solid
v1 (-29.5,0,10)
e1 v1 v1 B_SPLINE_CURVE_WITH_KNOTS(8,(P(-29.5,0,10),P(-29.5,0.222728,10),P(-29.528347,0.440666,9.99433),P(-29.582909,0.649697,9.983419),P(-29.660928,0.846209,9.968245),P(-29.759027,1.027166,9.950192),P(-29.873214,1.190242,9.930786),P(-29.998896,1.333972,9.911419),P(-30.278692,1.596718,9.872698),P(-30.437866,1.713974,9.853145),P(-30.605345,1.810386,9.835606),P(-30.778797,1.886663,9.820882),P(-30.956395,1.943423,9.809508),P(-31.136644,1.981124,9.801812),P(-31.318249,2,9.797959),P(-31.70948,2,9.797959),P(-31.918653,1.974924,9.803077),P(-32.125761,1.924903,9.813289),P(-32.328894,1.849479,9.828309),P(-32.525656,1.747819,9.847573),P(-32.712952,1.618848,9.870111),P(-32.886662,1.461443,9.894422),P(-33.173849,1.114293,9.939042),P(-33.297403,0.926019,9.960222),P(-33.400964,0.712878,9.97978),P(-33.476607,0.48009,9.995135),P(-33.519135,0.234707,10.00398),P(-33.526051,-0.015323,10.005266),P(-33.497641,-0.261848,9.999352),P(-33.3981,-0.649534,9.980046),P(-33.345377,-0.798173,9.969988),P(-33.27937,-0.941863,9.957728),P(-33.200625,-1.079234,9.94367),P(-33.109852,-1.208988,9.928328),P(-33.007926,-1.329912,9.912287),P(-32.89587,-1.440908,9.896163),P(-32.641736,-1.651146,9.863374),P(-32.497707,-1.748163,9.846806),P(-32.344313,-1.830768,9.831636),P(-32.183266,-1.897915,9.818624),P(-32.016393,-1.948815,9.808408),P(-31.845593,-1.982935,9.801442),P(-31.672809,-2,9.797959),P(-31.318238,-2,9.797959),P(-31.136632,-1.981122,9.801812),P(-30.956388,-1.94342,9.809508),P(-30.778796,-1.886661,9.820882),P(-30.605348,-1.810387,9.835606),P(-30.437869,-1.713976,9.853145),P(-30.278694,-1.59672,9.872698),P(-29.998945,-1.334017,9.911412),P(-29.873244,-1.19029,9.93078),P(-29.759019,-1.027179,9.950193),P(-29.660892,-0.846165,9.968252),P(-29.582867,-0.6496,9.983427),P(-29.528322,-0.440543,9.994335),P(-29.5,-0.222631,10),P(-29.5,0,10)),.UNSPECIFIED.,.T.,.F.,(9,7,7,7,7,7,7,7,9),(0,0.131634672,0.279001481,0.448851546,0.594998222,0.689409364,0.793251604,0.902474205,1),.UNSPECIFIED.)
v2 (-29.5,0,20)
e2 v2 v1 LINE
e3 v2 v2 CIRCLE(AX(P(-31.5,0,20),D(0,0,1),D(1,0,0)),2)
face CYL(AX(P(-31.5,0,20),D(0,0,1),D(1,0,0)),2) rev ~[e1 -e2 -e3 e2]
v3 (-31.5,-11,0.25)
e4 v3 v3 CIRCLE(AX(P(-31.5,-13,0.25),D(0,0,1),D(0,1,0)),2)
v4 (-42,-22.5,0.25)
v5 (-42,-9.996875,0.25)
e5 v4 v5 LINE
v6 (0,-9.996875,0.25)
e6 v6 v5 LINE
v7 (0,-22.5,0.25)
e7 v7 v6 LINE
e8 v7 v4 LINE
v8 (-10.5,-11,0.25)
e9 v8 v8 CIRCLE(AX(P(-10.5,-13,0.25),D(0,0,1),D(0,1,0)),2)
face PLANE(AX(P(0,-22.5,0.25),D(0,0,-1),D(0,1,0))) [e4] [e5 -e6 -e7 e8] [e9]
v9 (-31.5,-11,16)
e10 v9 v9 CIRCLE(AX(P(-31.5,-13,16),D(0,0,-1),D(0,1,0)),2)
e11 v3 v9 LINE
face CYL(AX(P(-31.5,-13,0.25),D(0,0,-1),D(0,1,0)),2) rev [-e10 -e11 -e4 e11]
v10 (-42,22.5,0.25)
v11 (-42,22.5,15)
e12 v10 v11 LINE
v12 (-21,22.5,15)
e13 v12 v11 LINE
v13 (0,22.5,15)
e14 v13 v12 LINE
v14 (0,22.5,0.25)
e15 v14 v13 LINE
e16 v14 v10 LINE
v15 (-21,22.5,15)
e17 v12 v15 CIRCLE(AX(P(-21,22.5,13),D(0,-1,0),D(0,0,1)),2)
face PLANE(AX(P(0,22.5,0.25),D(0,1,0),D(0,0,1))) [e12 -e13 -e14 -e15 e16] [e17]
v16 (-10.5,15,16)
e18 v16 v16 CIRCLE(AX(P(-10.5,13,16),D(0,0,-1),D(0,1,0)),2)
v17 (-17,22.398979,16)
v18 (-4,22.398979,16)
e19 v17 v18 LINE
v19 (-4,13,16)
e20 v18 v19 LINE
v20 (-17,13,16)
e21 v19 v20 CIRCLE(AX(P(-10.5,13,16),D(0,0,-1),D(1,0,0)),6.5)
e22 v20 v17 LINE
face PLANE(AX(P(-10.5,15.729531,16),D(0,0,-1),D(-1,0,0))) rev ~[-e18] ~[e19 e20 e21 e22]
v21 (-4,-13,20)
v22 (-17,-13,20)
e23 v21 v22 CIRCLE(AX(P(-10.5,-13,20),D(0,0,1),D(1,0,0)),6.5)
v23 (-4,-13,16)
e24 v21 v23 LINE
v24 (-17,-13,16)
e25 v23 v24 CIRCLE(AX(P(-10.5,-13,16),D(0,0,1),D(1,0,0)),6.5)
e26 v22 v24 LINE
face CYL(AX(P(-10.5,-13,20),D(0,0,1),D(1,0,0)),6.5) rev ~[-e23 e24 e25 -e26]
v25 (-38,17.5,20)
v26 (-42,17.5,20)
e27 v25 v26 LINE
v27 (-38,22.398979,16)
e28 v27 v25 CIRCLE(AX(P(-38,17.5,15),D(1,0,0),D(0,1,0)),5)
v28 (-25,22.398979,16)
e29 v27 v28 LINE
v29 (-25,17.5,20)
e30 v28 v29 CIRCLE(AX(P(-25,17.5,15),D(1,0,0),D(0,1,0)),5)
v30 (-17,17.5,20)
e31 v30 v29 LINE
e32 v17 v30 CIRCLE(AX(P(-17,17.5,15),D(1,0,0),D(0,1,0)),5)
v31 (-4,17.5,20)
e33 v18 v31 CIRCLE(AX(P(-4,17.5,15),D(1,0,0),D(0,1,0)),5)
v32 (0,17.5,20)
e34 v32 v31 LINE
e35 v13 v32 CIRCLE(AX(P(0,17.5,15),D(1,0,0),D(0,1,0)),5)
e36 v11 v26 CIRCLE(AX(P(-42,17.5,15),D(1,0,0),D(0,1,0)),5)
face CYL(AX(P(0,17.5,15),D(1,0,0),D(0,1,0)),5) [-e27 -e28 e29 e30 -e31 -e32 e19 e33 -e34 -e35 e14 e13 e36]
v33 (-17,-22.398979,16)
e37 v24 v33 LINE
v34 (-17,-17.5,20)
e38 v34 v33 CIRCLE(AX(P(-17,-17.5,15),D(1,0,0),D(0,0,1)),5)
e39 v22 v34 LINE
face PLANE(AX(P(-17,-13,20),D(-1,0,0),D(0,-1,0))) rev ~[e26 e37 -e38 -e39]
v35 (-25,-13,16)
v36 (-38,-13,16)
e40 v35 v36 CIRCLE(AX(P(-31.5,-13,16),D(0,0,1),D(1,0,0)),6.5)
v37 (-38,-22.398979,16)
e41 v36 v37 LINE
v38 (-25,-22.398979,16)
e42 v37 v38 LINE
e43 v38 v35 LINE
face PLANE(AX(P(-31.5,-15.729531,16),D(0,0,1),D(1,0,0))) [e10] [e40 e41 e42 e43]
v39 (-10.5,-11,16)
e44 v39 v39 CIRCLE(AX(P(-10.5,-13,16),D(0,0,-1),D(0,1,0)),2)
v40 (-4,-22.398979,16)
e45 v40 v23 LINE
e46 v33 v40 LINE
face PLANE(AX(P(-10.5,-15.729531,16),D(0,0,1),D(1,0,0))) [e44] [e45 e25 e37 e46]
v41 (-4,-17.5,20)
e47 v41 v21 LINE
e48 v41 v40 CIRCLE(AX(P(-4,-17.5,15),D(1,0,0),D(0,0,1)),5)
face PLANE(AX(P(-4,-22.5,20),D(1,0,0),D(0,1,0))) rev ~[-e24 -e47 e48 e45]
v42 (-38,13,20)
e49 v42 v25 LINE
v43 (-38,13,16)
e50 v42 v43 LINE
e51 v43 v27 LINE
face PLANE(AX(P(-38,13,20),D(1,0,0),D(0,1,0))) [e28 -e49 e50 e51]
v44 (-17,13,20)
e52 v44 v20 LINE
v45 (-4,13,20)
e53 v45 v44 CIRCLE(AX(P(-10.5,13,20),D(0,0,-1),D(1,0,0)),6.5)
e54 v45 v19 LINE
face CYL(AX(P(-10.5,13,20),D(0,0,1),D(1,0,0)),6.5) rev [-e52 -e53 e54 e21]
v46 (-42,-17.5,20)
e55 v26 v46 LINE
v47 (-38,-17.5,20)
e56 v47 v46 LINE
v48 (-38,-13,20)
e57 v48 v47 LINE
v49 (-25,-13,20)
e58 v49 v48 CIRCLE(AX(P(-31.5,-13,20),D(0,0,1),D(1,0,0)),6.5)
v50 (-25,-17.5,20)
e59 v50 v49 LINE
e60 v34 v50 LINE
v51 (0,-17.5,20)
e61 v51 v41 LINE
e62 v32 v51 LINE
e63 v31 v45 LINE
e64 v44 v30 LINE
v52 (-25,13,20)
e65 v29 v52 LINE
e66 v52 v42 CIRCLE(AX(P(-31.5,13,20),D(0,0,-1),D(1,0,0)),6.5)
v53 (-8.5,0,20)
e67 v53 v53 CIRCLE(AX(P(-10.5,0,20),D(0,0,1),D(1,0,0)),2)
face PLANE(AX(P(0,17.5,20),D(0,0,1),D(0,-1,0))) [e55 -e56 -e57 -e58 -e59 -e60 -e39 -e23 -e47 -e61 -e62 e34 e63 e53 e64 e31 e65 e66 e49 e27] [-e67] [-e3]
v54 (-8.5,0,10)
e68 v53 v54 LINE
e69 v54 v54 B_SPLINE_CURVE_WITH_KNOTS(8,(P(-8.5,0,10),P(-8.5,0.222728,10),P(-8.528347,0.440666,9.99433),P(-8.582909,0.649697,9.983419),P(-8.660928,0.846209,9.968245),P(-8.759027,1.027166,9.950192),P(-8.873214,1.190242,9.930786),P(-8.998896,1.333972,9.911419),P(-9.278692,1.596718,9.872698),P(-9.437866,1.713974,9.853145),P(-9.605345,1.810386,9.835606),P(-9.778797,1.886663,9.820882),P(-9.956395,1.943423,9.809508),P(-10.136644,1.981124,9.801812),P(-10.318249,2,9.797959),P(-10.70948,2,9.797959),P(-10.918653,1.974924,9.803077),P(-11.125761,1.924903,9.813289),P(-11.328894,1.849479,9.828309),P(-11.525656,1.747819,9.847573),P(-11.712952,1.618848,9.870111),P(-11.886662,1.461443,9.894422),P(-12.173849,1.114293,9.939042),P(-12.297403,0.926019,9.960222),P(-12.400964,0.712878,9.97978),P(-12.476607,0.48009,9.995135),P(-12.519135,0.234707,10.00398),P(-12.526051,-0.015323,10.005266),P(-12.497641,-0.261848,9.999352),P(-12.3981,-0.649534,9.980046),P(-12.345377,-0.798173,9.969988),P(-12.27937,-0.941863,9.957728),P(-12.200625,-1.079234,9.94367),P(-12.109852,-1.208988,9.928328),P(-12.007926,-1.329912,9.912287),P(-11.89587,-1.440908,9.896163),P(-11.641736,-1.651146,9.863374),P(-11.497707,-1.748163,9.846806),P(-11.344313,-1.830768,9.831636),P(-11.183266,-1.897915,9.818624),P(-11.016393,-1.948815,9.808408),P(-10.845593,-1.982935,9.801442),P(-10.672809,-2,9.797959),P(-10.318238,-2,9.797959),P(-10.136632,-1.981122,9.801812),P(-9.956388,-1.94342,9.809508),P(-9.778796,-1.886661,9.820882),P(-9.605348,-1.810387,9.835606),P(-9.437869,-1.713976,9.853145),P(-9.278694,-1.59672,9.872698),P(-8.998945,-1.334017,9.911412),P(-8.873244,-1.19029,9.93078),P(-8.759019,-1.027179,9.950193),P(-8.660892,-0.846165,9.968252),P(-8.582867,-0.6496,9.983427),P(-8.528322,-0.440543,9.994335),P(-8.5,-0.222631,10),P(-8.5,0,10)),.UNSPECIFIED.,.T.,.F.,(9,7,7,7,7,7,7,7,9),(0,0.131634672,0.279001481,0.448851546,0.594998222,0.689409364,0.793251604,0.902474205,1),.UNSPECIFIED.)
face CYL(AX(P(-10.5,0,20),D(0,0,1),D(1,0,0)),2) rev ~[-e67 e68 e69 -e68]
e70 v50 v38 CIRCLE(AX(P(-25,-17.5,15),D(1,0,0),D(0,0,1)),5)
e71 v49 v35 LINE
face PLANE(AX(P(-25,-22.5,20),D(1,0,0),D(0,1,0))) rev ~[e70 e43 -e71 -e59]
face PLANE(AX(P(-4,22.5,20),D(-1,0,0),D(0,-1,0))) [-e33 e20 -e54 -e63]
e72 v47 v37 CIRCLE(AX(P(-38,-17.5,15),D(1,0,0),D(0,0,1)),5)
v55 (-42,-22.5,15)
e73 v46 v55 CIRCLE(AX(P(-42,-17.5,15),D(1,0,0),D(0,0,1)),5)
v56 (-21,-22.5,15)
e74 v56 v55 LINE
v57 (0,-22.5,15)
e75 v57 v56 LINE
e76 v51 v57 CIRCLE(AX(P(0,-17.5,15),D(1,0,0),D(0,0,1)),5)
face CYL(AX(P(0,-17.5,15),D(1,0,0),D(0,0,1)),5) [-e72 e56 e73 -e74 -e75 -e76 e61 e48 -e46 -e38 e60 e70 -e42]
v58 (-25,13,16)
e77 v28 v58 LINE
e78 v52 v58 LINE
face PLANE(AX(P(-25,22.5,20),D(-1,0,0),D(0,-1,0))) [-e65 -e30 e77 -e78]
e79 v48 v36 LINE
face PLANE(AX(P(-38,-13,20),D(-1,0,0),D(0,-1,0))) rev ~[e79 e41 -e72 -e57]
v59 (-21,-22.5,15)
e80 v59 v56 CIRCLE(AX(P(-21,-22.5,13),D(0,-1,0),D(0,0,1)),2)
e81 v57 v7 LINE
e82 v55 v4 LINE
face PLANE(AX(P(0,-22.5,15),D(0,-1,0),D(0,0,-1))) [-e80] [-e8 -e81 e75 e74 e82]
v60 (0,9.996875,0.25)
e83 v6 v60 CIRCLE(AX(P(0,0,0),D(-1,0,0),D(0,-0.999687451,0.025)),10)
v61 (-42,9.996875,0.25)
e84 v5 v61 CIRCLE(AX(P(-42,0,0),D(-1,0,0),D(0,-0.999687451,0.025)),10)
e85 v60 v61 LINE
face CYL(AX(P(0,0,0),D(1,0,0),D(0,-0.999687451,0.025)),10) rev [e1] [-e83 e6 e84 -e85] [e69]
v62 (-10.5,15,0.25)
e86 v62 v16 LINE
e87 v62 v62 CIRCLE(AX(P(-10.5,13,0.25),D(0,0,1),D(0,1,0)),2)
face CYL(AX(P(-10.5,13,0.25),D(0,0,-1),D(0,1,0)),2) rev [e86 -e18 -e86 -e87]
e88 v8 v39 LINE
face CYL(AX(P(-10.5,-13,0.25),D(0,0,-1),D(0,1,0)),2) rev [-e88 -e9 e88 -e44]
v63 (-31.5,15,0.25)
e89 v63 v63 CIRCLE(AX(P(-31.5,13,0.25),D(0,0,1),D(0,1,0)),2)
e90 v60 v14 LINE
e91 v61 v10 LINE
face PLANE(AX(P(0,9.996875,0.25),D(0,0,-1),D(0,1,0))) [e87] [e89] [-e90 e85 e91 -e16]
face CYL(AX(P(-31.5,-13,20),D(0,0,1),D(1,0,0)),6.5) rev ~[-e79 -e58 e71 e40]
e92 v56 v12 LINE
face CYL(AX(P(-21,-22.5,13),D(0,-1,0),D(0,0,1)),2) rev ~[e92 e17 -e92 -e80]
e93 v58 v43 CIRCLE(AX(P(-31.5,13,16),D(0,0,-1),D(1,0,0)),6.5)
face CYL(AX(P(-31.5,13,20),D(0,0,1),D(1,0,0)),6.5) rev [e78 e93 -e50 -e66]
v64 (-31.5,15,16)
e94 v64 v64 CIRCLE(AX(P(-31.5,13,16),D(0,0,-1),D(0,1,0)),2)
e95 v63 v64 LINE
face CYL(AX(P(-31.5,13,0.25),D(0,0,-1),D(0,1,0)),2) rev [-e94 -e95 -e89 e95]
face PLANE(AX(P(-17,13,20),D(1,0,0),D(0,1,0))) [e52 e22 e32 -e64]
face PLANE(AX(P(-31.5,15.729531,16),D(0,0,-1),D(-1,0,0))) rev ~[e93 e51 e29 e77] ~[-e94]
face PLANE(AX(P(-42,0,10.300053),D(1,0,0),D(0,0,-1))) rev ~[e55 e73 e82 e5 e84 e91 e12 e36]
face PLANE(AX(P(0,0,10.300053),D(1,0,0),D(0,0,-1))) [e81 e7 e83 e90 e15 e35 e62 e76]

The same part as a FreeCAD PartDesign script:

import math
import FreeCAD as App
import Part
import Sketcher
from FreeCAD import Vector
Q = App.Units.Quantity

doc = App.newDocument("Part")
body = doc.addObject("PartDesign::Body", "Body")

sketch1 = body.newObject("Sketcher::SketchObject", "Sketch")
sketch1.AttachmentSupport = (doc.getObject("YZ_Plane"), [""])
sketch1.MapMode = "FlatFace"
sketch1.addGeometry(Part.LineSegment(Vector(10, 0, 0), Vector(22, 0, 0)), False)
sketch1.addGeometry(Part.LineSegment(Vector(22, 0, 0), Vector(22, 15, 0)), False)
sketch1.addGeometry(Part.ArcOfCircle(Part.Circle(Vector(18, 15, 0), Vector(0, 0, 1), 5), math.radians(0), math.radians(90)), False)
sketch1.addGeometry(Part.LineSegment(Vector(18, 20, 0), Vector(-18, 20, 0)), False)
sketch1.addGeometry(Part.ArcOfCircle(Part.Circle(Vector(-18, 15, 0), Vector(0, 0, 1), 5), math.radians(90), math.radians(180)), False)
sketch1.addGeometry(Part.LineSegment(Vector(-22, 15, 0), Vector(-22, 0, 0)), False)
sketch1.addGeometry(Part.LineSegment(Vector(-22, 0, 0), Vector(-10, 0, 0)), False)
sketch1.addGeometry(Part.ArcOfCircle(Part.Circle(Vector(0, 0, 0), Vector(0, 0, 1), 10), math.radians(1), math.radians(179)), False)
sketch1.addConstraint(Sketcher.Constraint("Coincident", 0, 2, 1, 1))
sketch1.addConstraint(Sketcher.Constraint("Tangent", 1, 2, 2, 1))
sketch1.addConstraint(Sketcher.Constraint("Tangent", 2, 2, 3, 1))
sketch1.addConstraint(Sketcher.Constraint("Tangent", 3, 2, 4, 1))
sketch1.addConstraint(Sketcher.Constraint("Tangent", 4, 2, 5, 1))
sketch1.addConstraint(Sketcher.Constraint("Coincident", 5, 2, 6, 1))
sketch1.addConstraint(Sketcher.Constraint("Coincident", 6, 2, 7, 2))
sketch1.addConstraint(Sketcher.Constraint("Coincident", 7, 1, 0, 1))
sketch1.addConstraint(Sketcher.Constraint("Horizontal", 0))
sketch1.addConstraint(Sketcher.Constraint("Vertical", 1))
sketch1.addConstraint(Sketcher.Constraint("Horizontal", 3))
sketch1.addConstraint(Sketcher.Constraint("Vertical", 5))
sketch1.addConstraint(Sketcher.Constraint("Horizontal", 6))
sketch1.addConstraint(Sketcher.Constraint("Coincident", 7, 3, -1, 1))
sketch1.addConstraint(Sketcher.Constraint("Equal", 2, 4))
sketch1.addConstraint(Sketcher.Constraint("Symmetric", 0, 2, 5, 2, -2))
sketch1.addConstraint(Sketcher.Constraint("Radius", 2, Q("5 mm")))
sketch1.addConstraint(Sketcher.Constraint("Radius", 7, Q("10 mm")))
sketch1.addConstraint(Sketcher.Constraint("DistanceX", 3, 2, 3, 1, Q("35 mm")))
sketch1.addConstraint(Sketcher.Constraint("DistanceY", -1, 1, 2, 3, Q("15 mm")))
sketch1.addConstraint(Sketcher.Constraint("DistanceY", 1, 1, 1, 2, Q("14.75 mm")))
pad1 = body.newObject("PartDesign::Pad", "Pad")
pad1.Profile = sketch1
pad1.Length = 42
pad1.Reversed = True

sketch2 = body.newObject("Sketcher::SketchObject", "Sketch001")
sketch2.AttachmentSupport = (doc.getObject("XY_Plane"), [""])
sketch2.MapMode = "FlatFace"
sketch2.AttachmentOffset = App.Placement(Vector(0, 0, 0.25), App.Rotation())
sketch2.addGeometry(Part.Circle(Vector(-10.5, 13, 0), Vector(0, 0, 1), 2), False)
sketch2.addGeometry(Part.Circle(Vector(-31.5, 13, 0), Vector(0, 0, 1), 2), False)
sketch2.addGeometry(Part.Circle(Vector(-31.5, -13, 0), Vector(0, 0, 1), 2), False)
sketch2.addGeometry(Part.Circle(Vector(-10.5, -13, 0), Vector(0, 0, 1), 2), False)
sketch2.addConstraint(Sketcher.Constraint("Equal", 0, 1))
sketch2.addConstraint(Sketcher.Constraint("Equal", 1, 2))
sketch2.addConstraint(Sketcher.Constraint("Equal", 2, 3))
sketch2.addConstraint(Sketcher.Constraint("Symmetric", 1, 3, 2, 3, -1))
sketch2.addConstraint(Sketcher.Constraint("Symmetric", 0, 3, 3, 3, -1))
sketch2.addConstraint(Sketcher.Constraint("Horizontal", 0, 3, 1, 3))
sketch2.addConstraint(Sketcher.Constraint("Diameter", 0, Q("4 mm")))
sketch2.addConstraint(Sketcher.Constraint("DistanceY", -1, 1, 0, 3, Q("13 mm")))
sketch2.addConstraint(Sketcher.Constraint("DistanceX", 1, 3, 0, 3, Q("21 mm")))
sketch2.addConstraint(Sketcher.Constraint("DistanceX", 0, 3, -1, 1, Q("10.5 mm")))
pocket1 = body.newObject("PartDesign::Pocket", "Pocket")
pocket1.Profile = sketch2
pocket1.Type = "ThroughAll"
pocket1.Reversed = True

sketch3 = body.newObject("Sketcher::SketchObject", "Sketch002")
sketch3.AttachmentSupport = (doc.getObject("XY_Plane"), [""])
sketch3.MapMode = "FlatFace"
sketch3.AttachmentOffset = App.Placement(Vector(0, 0, 20), App.Rotation())
sketch3.addGeometry(Part.LineSegment(Vector(-38, 22, 0), Vector(-38, 13, 0)), False)
sketch3.addGeometry(Part.ArcOfCircle(Part.Circle(Vector(-32, 13, 0), Vector(0, 0, 1), 6), math.radians(180), math.radians(360)), False)
sketch3.addGeometry(Part.LineSegment(Vector(-25, 13, 0), Vector(-25, 22, 0)), False)
sketch3.addGeometry(Part.LineSegment(Vector(-25, 22, 0), Vector(-38, 22, 0)), False)
sketch3.addGeometry(Part.LineSegment(Vector(-17, 22, 0), Vector(-17, 13, 0)), False)
sketch3.addGeometry(Part.ArcOfCircle(Part.Circle(Vector(-10, 13, 0), Vector(0, 0, 1), 6), math.radians(180), math.radians(360)), False)
sketch3.addGeometry(Part.LineSegment(Vector(-4, 13, 0), Vector(-4, 22, 0)), False)
sketch3.addGeometry(Part.LineSegment(Vector(-4, 22, 0), Vector(-17, 22, 0)), False)
sketch3.addGeometry(Part.LineSegment(Vector(-4, -22, 0), Vector(-4, -13, 0)), False)
sketch3.addGeometry(Part.ArcOfCircle(Part.Circle(Vector(-10, -13, 0), Vector(0, 0, 1), 6), math.radians(0), math.radians(180)), False)
sketch3.addGeometry(Part.LineSegment(Vector(-17, -13, 0), Vector(-17, -22, 0)), False)
sketch3.addGeometry(Part.LineSegment(Vector(-17, -22, 0), Vector(-4, -22, 0)), False)
sketch3.addGeometry(Part.LineSegment(Vector(-25, -22, 0), Vector(-25, -13, 0)), False)
sketch3.addGeometry(Part.ArcOfCircle(Part.Circle(Vector(-32, -13, 0), Vector(0, 0, 1), 6), math.radians(0), math.radians(180)), False)
sketch3.addGeometry(Part.LineSegment(Vector(-38, -13, 0), Vector(-38, -22, 0)), False)
sketch3.addGeometry(Part.LineSegment(Vector(-38, -22, 0), Vector(-25, -22, 0)), False)
sketch3.addConstraint(Sketcher.Constraint("Tangent", 0, 2, 1, 1))
sketch3.addConstraint(Sketcher.Constraint("Tangent", 1, 2, 2, 1))
sketch3.addConstraint(Sketcher.Constraint("Coincident", 2, 2, 3, 1))
sketch3.addConstraint(Sketcher.Constraint("Coincident", 3, 2, 0, 1))
sketch3.addConstraint(Sketcher.Constraint("Tangent", 4, 2, 5, 1))
sketch3.addConstraint(Sketcher.Constraint("Tangent", 5, 2, 6, 1))
sketch3.addConstraint(Sketcher.Constraint("Coincident", 6, 2, 7, 1))
sketch3.addConstraint(Sketcher.Constraint("Coincident", 7, 2, 4, 1))
sketch3.addConstraint(Sketcher.Constraint("Tangent", 8, 2, 9, 1))
sketch3.addConstraint(Sketcher.Constraint("Tangent", 9, 2, 10, 1))
sketch3.addConstraint(Sketcher.Constraint("Coincident", 10, 2, 11, 1))
sketch3.addConstraint(Sketcher.Constraint("Coincident", 11, 2, 8, 1))
sketch3.addConstraint(Sketcher.Constraint("Tangent", 12, 2, 13, 1))
sketch3.addConstraint(Sketcher.Constraint("Tangent", 13, 2, 14, 1))
sketch3.addConstraint(Sketcher.Constraint("Coincident", 14, 2, 15, 1))
sketch3.addConstraint(Sketcher.Constraint("Coincident", 15, 2, 12, 1))
sketch3.addConstraint(Sketcher.Constraint("Vertical", 0))
sketch3.addConstraint(Sketcher.Constraint("Vertical", 2))
sketch3.addConstraint(Sketcher.Constraint("Horizontal", 3))
sketch3.addConstraint(Sketcher.Constraint("Vertical", 4))
sketch3.addConstraint(Sketcher.Constraint("Vertical", 6))
sketch3.addConstraint(Sketcher.Constraint("Horizontal", 7))
sketch3.addConstraint(Sketcher.Constraint("Vertical", 8))
sketch3.addConstraint(Sketcher.Constraint("Vertical", 10))
sketch3.addConstraint(Sketcher.Constraint("Horizontal", 11))
sketch3.addConstraint(Sketcher.Constraint("Vertical", 12))
sketch3.addConstraint(Sketcher.Constraint("Vertical", 14))
sketch3.addConstraint(Sketcher.Constraint("Horizontal", 15))
sketch3.addConstraint(Sketcher.Constraint("Equal", 1, 5))
sketch3.addConstraint(Sketcher.Constraint("Equal", 5, 9))
sketch3.addConstraint(Sketcher.Constraint("Equal", 9, 13))
sketch3.addConstraint(Sketcher.Constraint("Symmetric", 5, 3, 9, 3, -1))
sketch3.addConstraint(Sketcher.Constraint("Symmetric", 1, 3, 13, 3, -1))
sketch3.addConstraint(Sketcher.Constraint("Horizontal", 1, 3, 5, 3))
sketch3.addConstraint(Sketcher.Constraint("Horizontal", 3, 2, 6, 2))
sketch3.addConstraint(Sketcher.Constraint("Horizontal", 11, 2, 14, 2))
sketch3.addConstraint(Sketcher.Constraint("Equal", 6, 8))
sketch3.addConstraint(Sketcher.Constraint("Radius", 1, Q("6.5 mm")))
sketch3.addConstraint(Sketcher.Constraint("DistanceY", 0, 2, 0, 1, Q("9.5 mm")))
sketch3.addConstraint(Sketcher.Constraint("DistanceY", -1, 1, 1, 3, Q("13 mm")))
sketch3.addConstraint(Sketcher.Constraint("DistanceX", 0, 2, -1, 1, Q("38 mm")))
sketch3.addConstraint(Sketcher.Constraint("DistanceX", 4, 2, -1, 1, Q("17 mm")))
pocket2 = body.newObject("PartDesign::Pocket", "Pocket001")
pocket2.Profile = sketch3
pocket2.Length = 4

sketch4 = body.newObject("Sketcher::SketchObject", "Sketch003")
sketch4.AttachmentSupport = (doc.getObject("XY_Plane"), [""])
sketch4.MapMode = "FlatFace"
sketch4.AttachmentOffset = App.Placement(Vector(0, 0, 20), App.Rotation())
sketch4.addGeometry(Part.Circle(Vector(-10.5, 0, 0), Vector(0, 0, 1), 2), False)
sketch4.addGeometry(Part.Circle(Vector(-31.5, 0, 0), Vector(0, 0, 1), 2), False)
sketch4.addConstraint(Sketcher.Constraint("Equal", 0, 1))
sketch4.addConstraint(Sketcher.Constraint("PointOnObject", 0, 3, -1))
sketch4.addConstraint(Sketcher.Constraint("PointOnObject", 1, 3, -1))
sketch4.addConstraint(Sketcher.Constraint("Diameter", 0, Q("4 mm")))
sketch4.addConstraint(Sketcher.Constraint("DistanceX", 1, 3, 0, 3, Q("21 mm")))
sketch4.addConstraint(Sketcher.Constraint("DistanceX", 0, 3, -1, 1, Q("10.5 mm")))
pocket3 = body.newObject("PartDesign::Pocket", "Pocket002")
pocket3.Profile = sketch4
pocket3.Type = "ThroughAll"

sketch5 = body.newObject("Sketcher::SketchObject", "Sketch004")
sketch5.AttachmentSupport = (doc.getObject("XZ_Plane"), [""])
sketch5.MapMode = "FlatFace"
sketch5.AttachmentOffset = App.Placement(Vector(0, 0, 22.5), App.Rotation())
sketch5.addGeometry(Part.Circle(Vector(-21, 13, 0), Vector(0, 0, 1), 2), False)
sketch5.addConstraint(Sketcher.Constraint("Diameter", 0, Q("4 mm")))
sketch5.addConstraint(Sketcher.Constraint("DistanceX", 0, 3, -1, 1, Q("21 mm")))
sketch5.addConstraint(Sketcher.Constraint("DistanceY", -1, 1, 0, 3, Q("13 mm")))
pocket4 = body.newObject("PartDesign::Pocket", "Pocket003")
pocket4.Profile = sketch5
pocket4.Type = "ThroughAll"

doc.recompute()
